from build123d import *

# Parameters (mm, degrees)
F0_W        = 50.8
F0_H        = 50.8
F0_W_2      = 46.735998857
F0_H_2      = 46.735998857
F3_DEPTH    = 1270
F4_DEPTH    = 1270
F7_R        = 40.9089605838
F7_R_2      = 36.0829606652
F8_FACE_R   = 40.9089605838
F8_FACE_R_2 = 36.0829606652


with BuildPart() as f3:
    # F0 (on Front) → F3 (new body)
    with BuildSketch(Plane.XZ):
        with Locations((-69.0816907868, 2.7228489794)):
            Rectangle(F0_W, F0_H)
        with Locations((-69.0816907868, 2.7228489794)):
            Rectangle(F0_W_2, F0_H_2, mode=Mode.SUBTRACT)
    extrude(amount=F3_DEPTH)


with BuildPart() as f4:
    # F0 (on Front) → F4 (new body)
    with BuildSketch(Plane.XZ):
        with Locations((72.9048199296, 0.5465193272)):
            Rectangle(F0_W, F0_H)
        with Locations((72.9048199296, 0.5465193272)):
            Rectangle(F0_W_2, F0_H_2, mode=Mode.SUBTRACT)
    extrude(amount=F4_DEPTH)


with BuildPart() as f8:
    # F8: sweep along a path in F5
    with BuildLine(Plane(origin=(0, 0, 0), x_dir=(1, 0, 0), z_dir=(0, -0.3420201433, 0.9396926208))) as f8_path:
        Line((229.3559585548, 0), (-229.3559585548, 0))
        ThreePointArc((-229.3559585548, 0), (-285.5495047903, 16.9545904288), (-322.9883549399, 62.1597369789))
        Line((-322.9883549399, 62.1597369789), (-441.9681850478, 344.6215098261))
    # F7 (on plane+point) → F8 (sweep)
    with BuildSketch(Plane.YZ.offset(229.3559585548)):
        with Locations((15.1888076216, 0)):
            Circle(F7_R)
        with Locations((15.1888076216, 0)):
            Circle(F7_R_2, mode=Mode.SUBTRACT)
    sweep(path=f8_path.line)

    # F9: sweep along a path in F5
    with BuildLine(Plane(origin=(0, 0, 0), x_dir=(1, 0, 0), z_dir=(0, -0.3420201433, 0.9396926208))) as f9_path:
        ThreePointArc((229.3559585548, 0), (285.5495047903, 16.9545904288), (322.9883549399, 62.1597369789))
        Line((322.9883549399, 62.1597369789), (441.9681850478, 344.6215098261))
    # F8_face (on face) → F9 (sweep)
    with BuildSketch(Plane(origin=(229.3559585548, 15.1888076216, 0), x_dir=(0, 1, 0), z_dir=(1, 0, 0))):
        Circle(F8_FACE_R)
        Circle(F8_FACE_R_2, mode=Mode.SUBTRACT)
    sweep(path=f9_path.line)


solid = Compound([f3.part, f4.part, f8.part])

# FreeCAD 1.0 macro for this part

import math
import FreeCAD as App
import Part
import Sketcher
from FreeCAD import Vector
Q = App.Units.Quantity

doc = App.newDocument("Part")
body = doc.addObject("PartDesign::Body", "Body")

sketch1 = body.newObject("Sketcher::SketchObject", "Sketch")
sketch1.AttachmentSupport = (doc.getObject("XZ_Plane"), [""])
sketch1.MapMode = "FlatFace"
sketch1.addGeometry([
    Part.LineSegment(Vector(-94, 28, 0), Vector(-94, -23, 0)),
    Part.LineSegment(Vector(-94, -23, 0), Vector(-44, -23, 0)),
    Part.LineSegment(Vector(-44, -23, 0), Vector(-44, 28, 0)),
    Part.LineSegment(Vector(-44, 28, 0), Vector(-94, 28, 0)),
    Part.LineSegment(Vector(-46, -21, 0), Vector(-92, -21, 0)),
    Part.LineSegment(Vector(-92, -21, 0), Vector(-92, 26, 0)),
    Part.LineSegment(Vector(-92, 26, 0), Vector(-46, 26, 0)),
    Part.LineSegment(Vector(-46, 26, 0), Vector(-46, -21, 0)),
], False)
sketch1.addConstraint([
    Sketcher.Constraint("Coincident", 0, 2, 1, 1),
    Sketcher.Constraint("Coincident", 1, 2, 2, 1),
    Sketcher.Constraint("Coincident", 2, 2, 3, 1),
    Sketcher.Constraint("Coincident", 3, 2, 0, 1),
    Sketcher.Constraint("Coincident", 4, 2, 5, 1),
    Sketcher.Constraint("Coincident", 5, 2, 6, 1),
    Sketcher.Constraint("Coincident", 6, 2, 7, 1),
    Sketcher.Constraint("Coincident", 7, 2, 4, 1),
    Sketcher.Constraint("Vertical", 0),
    Sketcher.Constraint("Horizontal", 1),
    Sketcher.Constraint("Vertical", 2),
    Sketcher.Constraint("Horizontal", 3),
    Sketcher.Constraint("Horizontal", 4),
    Sketcher.Constraint("Vertical", 5),
    Sketcher.Constraint("Horizontal", 6),
    Sketcher.Constraint("Vertical", 7),
    Sketcher.Constraint("Equal", 3, 0),
    Sketcher.Constraint("Equal", 6, 5),
    Sketcher.Constraint("DistanceX", 1, 1, 1, 2, Q("2 in")),
    Sketcher.Constraint("DistanceX", 4, 2, 4, 1, Q("1.84 in")),
    Sketcher.Constraint("DistanceX", 0, 2, 4, 2, Q("0.08 in")),
    Sketcher.Constraint("DistanceY", 0, 2, 4, 2, Q("0.08 in")),
    Sketcher.Constraint("DistanceX", 0, 2, -1, 1, 94.481691),
    Sketcher.Constraint("DistanceY", 0, 2, -1, 1, 22.677151),
])
pad1 = body.newObject("PartDesign::Pad", "Pad")
pad1.Profile = sketch1
pad1.Length = Q("50 in")
body2 = doc.addObject("PartDesign::Body", "Body001")

sketch2 = body2.newObject("Sketcher::SketchObject", "Sketch001")
sketch2.AttachmentSupport = (doc.getObject("XZ_Plane001"), [""])
sketch2.MapMode = "FlatFace"
sketch2.addGeometry([
    Part.LineSegment(Vector(48, 26, 0), Vector(48, -25, 0)),
    Part.LineSegment(Vector(48, -25, 0), Vector(98, -25, 0)),
    Part.LineSegment(Vector(98, -25, 0), Vector(98, 26, 0)),
    Part.LineSegment(Vector(98, 26, 0), Vector(48, 26, 0)),
    Part.LineSegment(Vector(96, -23, 0), Vector(50, -23, 0)),
    Part.LineSegment(Vector(50, -23, 0), Vector(50, 24, 0)),
    Part.LineSegment(Vector(50, 24, 0), Vector(96, 24, 0)),
    Part.LineSegment(Vector(96, 24, 0), Vector(96, -23, 0)),
], False)
sketch2.addConstraint([
    Sketcher.Constraint("Coincident", 0, 2, 1, 1),
    Sketcher.Constraint("Coincident", 1, 2, 2, 1),
    Sketcher.Constraint("Coincident", 2, 2, 3, 1),
    Sketcher.Constraint("Coincident", 3, 2, 0, 1),
    Sketcher.Constraint("Coincident", 4, 2, 5, 1),
    Sketcher.Constraint("Coincident", 5, 2, 6, 1),
    Sketcher.Constraint("Coincident", 6, 2, 7, 1),
    Sketcher.Constraint("Coincident", 7, 2, 4, 1),
    Sketcher.Constraint("Vertical", 0),
    Sketcher.Constraint("Horizontal", 1),
    Sketcher.Constraint("Vertical", 2),
    Sketcher.Constraint("Horizontal", 3),
    Sketcher.Constraint("Horizontal", 4),
    Sketcher.Constraint("Vertical", 5),
    Sketcher.Constraint("Horizontal", 6),
    Sketcher.Constraint("Vertical", 7),
    Sketcher.Constraint("Equal", 3, 0),
    Sketcher.Constraint("Equal", 6, 5),
    Sketcher.Constraint("DistanceX", 1, 1, 1, 2, Q("2 in")),
    Sketcher.Constraint("DistanceX", 4, 2, 4, 1, Q("1.84 in")),
    Sketcher.Constraint("DistanceX", 0, 2, 4, 2, Q("0.08 in")),
    Sketcher.Constraint("DistanceY", 0, 2, 4, 2, Q("0.08 in")),
    Sketcher.Constraint("DistanceX", -1, 1, 0, 2, 47.50482),
    Sketcher.Constraint("DistanceY", 0, 2, -1, 1, 24.853481),
])
pad2 = body2.newObject("PartDesign::Pad", "Pad001")
pad2.Profile = sketch2
pad2.Length = Q("50 in")
body3 = doc.addObject("PartDesign::Body", "Body002")

sketch3 = body3.newObject("Sketcher::SketchObject", "Sketch002")
sketch3.AttachmentSupport = (doc.getObject("YZ_Plane002"), [""])
sketch3.MapMode = "FlatFace"
sketch3.AttachmentOffset = App.Placement(Vector(0, 0, 229.355959), App.Rotation())
sketch3.addGeometry([
    Part.Circle(Vector(15, 0, 0), Vector(0, 0, 1), 41),
    Part.Circle(Vector(15, 0, 0), Vector(0, 0, 1), 36),
], False)
sketch3.addConstraint([
    Sketcher.Constraint("Coincident", 1, 3, 0, 3),
    Sketcher.Constraint("PointOnObject", 0, 3, -1),
    Sketcher.Constraint("Diameter", 0, 81.817921),
    Sketcher.Constraint("Diameter", 1, 72.165921),
    Sketcher.Constraint("DistanceX", -1, 1, 0, 3, 15.188808),
])

sketch4 = body3.newObject("Sketcher::SketchObject", "Sketch003")
sketch4.Placement = App.Placement(Vector(0, 0, 0), App.Rotation(Vector(0, -0.939692621, -0.342020143), Vector(1, 0, 0), Vector(0, -0.342020143, 0.939692621), "ZXY"))
sketch4.addGeometry([
    Part.LineSegment(Vector(0, 229, 0), Vector(0, -229, 0)),
    Part.ArcOfCircle(Part.Circle(Vector(-102, -229, 0), Vector(0, 0, 1), 102), math.radians(-67), math.radians(0)),
    Part.LineSegment(Vector(-62, -323, 0), Vector(-345, -442, 0)),
], False)
sketch4.addConstraint([
    Sketcher.Constraint("Tangent", 0, 2, 1, 2),
    Sketcher.Constraint("Tangent", 1, 1, 2, 1),
    Sketcher.Constraint("Vertical", 0),
    Sketcher.Constraint("Symmetric", 0, 1, 0, 2, -1, 1),
    Sketcher.Constraint("Radius", 1, Q("4 in")),
    Sketcher.Constraint("Distance", 2, 306.497721),
    Sketcher.Constraint("DistanceY", 0, 2, 0, 1, 458.711917),
    Sketcher.Constraint("DistanceX", 2, 2, -1, 1, 344.62151),
])
doc.recompute()

additivepipe = body3.newObject("PartDesign::AdditivePipe", "AdditivePipe")
additivepipe.Profile = sketch3
additivepipe.Spine = (sketch4, ["Edge1", "Edge2", "Edge3"])

sketch5 = body3.newObject("Sketcher::SketchObject", "Sketch004")
sketch5.AttachmentSupport = (doc.getObject("YZ_Plane002"), [""])
sketch5.MapMode = "FlatFace"
sketch5.AttachmentOffset = App.Placement(Vector(0, 0, 229.355959), App.Rotation())
sketch5.addGeometry([
    Part.Circle(Vector(15, 0, 0), Vector(0, 0, 1), 41),
    Part.Circle(Vector(15, 0, 0), Vector(0, 0, 1), 36),
], False)
sketch5.addConstraint([
    Sketcher.Constraint("Coincident", 1, 3, 0, 3),
    Sketcher.Constraint("PointOnObject", 0, 3, -1),
    Sketcher.Constraint("Diameter", 0, 81.817921),
    Sketcher.Constraint("Diameter", 1, 72.165921),
    Sketcher.Constraint("DistanceX", -1, 1, 0, 3, 15.188808),
])

sketch6 = body3.newObject("Sketcher::SketchObject", "Sketch005")
sketch6.Placement = App.Placement(Vector(0, 0, 0), App.Rotation(Vector(0, 0.939692621, 0.342020143), Vector(1, 0, 0), Vector(0, 0.342020143, -0.939692621), "ZXY"))
sketch6.addGeometry([
    Part.ArcOfCircle(Part.Circle(Vector(102, 229, 0), Vector(0, 0, 1), 102), math.radians(113), math.radians(180)),
    Part.LineSegment(Vector(62, 323, 0), Vector(345, 442, 0)),
], False)
sketch6.addConstraint([
    Sketcher.Constraint("Tangent", 0, 1, 1, 1),
    Sketcher.Constraint("PointOnObject", 0, 2, -2),
    Sketcher.Constraint("Radius", 0, Q("4 in")),
    Sketcher.Constraint("Distance", 1, 306.497721),
    Sketcher.Constraint("DistanceY", -1, 1, 0, 3, 229.355959),
    Sketcher.Constraint("DistanceY", -1, 1, 0, 2, 229.355959),
    Sketcher.Constraint("DistanceX", -1, 1, 1, 2, 344.62151),
])
doc.recompute()

additivepipe2 = body3.newObject("PartDesign::AdditivePipe", "AdditivePipe001")
additivepipe2.Profile = sketch5
additivepipe2.Spine = (sketch6, ["Edge1", "Edge2"])

doc.recompute()
